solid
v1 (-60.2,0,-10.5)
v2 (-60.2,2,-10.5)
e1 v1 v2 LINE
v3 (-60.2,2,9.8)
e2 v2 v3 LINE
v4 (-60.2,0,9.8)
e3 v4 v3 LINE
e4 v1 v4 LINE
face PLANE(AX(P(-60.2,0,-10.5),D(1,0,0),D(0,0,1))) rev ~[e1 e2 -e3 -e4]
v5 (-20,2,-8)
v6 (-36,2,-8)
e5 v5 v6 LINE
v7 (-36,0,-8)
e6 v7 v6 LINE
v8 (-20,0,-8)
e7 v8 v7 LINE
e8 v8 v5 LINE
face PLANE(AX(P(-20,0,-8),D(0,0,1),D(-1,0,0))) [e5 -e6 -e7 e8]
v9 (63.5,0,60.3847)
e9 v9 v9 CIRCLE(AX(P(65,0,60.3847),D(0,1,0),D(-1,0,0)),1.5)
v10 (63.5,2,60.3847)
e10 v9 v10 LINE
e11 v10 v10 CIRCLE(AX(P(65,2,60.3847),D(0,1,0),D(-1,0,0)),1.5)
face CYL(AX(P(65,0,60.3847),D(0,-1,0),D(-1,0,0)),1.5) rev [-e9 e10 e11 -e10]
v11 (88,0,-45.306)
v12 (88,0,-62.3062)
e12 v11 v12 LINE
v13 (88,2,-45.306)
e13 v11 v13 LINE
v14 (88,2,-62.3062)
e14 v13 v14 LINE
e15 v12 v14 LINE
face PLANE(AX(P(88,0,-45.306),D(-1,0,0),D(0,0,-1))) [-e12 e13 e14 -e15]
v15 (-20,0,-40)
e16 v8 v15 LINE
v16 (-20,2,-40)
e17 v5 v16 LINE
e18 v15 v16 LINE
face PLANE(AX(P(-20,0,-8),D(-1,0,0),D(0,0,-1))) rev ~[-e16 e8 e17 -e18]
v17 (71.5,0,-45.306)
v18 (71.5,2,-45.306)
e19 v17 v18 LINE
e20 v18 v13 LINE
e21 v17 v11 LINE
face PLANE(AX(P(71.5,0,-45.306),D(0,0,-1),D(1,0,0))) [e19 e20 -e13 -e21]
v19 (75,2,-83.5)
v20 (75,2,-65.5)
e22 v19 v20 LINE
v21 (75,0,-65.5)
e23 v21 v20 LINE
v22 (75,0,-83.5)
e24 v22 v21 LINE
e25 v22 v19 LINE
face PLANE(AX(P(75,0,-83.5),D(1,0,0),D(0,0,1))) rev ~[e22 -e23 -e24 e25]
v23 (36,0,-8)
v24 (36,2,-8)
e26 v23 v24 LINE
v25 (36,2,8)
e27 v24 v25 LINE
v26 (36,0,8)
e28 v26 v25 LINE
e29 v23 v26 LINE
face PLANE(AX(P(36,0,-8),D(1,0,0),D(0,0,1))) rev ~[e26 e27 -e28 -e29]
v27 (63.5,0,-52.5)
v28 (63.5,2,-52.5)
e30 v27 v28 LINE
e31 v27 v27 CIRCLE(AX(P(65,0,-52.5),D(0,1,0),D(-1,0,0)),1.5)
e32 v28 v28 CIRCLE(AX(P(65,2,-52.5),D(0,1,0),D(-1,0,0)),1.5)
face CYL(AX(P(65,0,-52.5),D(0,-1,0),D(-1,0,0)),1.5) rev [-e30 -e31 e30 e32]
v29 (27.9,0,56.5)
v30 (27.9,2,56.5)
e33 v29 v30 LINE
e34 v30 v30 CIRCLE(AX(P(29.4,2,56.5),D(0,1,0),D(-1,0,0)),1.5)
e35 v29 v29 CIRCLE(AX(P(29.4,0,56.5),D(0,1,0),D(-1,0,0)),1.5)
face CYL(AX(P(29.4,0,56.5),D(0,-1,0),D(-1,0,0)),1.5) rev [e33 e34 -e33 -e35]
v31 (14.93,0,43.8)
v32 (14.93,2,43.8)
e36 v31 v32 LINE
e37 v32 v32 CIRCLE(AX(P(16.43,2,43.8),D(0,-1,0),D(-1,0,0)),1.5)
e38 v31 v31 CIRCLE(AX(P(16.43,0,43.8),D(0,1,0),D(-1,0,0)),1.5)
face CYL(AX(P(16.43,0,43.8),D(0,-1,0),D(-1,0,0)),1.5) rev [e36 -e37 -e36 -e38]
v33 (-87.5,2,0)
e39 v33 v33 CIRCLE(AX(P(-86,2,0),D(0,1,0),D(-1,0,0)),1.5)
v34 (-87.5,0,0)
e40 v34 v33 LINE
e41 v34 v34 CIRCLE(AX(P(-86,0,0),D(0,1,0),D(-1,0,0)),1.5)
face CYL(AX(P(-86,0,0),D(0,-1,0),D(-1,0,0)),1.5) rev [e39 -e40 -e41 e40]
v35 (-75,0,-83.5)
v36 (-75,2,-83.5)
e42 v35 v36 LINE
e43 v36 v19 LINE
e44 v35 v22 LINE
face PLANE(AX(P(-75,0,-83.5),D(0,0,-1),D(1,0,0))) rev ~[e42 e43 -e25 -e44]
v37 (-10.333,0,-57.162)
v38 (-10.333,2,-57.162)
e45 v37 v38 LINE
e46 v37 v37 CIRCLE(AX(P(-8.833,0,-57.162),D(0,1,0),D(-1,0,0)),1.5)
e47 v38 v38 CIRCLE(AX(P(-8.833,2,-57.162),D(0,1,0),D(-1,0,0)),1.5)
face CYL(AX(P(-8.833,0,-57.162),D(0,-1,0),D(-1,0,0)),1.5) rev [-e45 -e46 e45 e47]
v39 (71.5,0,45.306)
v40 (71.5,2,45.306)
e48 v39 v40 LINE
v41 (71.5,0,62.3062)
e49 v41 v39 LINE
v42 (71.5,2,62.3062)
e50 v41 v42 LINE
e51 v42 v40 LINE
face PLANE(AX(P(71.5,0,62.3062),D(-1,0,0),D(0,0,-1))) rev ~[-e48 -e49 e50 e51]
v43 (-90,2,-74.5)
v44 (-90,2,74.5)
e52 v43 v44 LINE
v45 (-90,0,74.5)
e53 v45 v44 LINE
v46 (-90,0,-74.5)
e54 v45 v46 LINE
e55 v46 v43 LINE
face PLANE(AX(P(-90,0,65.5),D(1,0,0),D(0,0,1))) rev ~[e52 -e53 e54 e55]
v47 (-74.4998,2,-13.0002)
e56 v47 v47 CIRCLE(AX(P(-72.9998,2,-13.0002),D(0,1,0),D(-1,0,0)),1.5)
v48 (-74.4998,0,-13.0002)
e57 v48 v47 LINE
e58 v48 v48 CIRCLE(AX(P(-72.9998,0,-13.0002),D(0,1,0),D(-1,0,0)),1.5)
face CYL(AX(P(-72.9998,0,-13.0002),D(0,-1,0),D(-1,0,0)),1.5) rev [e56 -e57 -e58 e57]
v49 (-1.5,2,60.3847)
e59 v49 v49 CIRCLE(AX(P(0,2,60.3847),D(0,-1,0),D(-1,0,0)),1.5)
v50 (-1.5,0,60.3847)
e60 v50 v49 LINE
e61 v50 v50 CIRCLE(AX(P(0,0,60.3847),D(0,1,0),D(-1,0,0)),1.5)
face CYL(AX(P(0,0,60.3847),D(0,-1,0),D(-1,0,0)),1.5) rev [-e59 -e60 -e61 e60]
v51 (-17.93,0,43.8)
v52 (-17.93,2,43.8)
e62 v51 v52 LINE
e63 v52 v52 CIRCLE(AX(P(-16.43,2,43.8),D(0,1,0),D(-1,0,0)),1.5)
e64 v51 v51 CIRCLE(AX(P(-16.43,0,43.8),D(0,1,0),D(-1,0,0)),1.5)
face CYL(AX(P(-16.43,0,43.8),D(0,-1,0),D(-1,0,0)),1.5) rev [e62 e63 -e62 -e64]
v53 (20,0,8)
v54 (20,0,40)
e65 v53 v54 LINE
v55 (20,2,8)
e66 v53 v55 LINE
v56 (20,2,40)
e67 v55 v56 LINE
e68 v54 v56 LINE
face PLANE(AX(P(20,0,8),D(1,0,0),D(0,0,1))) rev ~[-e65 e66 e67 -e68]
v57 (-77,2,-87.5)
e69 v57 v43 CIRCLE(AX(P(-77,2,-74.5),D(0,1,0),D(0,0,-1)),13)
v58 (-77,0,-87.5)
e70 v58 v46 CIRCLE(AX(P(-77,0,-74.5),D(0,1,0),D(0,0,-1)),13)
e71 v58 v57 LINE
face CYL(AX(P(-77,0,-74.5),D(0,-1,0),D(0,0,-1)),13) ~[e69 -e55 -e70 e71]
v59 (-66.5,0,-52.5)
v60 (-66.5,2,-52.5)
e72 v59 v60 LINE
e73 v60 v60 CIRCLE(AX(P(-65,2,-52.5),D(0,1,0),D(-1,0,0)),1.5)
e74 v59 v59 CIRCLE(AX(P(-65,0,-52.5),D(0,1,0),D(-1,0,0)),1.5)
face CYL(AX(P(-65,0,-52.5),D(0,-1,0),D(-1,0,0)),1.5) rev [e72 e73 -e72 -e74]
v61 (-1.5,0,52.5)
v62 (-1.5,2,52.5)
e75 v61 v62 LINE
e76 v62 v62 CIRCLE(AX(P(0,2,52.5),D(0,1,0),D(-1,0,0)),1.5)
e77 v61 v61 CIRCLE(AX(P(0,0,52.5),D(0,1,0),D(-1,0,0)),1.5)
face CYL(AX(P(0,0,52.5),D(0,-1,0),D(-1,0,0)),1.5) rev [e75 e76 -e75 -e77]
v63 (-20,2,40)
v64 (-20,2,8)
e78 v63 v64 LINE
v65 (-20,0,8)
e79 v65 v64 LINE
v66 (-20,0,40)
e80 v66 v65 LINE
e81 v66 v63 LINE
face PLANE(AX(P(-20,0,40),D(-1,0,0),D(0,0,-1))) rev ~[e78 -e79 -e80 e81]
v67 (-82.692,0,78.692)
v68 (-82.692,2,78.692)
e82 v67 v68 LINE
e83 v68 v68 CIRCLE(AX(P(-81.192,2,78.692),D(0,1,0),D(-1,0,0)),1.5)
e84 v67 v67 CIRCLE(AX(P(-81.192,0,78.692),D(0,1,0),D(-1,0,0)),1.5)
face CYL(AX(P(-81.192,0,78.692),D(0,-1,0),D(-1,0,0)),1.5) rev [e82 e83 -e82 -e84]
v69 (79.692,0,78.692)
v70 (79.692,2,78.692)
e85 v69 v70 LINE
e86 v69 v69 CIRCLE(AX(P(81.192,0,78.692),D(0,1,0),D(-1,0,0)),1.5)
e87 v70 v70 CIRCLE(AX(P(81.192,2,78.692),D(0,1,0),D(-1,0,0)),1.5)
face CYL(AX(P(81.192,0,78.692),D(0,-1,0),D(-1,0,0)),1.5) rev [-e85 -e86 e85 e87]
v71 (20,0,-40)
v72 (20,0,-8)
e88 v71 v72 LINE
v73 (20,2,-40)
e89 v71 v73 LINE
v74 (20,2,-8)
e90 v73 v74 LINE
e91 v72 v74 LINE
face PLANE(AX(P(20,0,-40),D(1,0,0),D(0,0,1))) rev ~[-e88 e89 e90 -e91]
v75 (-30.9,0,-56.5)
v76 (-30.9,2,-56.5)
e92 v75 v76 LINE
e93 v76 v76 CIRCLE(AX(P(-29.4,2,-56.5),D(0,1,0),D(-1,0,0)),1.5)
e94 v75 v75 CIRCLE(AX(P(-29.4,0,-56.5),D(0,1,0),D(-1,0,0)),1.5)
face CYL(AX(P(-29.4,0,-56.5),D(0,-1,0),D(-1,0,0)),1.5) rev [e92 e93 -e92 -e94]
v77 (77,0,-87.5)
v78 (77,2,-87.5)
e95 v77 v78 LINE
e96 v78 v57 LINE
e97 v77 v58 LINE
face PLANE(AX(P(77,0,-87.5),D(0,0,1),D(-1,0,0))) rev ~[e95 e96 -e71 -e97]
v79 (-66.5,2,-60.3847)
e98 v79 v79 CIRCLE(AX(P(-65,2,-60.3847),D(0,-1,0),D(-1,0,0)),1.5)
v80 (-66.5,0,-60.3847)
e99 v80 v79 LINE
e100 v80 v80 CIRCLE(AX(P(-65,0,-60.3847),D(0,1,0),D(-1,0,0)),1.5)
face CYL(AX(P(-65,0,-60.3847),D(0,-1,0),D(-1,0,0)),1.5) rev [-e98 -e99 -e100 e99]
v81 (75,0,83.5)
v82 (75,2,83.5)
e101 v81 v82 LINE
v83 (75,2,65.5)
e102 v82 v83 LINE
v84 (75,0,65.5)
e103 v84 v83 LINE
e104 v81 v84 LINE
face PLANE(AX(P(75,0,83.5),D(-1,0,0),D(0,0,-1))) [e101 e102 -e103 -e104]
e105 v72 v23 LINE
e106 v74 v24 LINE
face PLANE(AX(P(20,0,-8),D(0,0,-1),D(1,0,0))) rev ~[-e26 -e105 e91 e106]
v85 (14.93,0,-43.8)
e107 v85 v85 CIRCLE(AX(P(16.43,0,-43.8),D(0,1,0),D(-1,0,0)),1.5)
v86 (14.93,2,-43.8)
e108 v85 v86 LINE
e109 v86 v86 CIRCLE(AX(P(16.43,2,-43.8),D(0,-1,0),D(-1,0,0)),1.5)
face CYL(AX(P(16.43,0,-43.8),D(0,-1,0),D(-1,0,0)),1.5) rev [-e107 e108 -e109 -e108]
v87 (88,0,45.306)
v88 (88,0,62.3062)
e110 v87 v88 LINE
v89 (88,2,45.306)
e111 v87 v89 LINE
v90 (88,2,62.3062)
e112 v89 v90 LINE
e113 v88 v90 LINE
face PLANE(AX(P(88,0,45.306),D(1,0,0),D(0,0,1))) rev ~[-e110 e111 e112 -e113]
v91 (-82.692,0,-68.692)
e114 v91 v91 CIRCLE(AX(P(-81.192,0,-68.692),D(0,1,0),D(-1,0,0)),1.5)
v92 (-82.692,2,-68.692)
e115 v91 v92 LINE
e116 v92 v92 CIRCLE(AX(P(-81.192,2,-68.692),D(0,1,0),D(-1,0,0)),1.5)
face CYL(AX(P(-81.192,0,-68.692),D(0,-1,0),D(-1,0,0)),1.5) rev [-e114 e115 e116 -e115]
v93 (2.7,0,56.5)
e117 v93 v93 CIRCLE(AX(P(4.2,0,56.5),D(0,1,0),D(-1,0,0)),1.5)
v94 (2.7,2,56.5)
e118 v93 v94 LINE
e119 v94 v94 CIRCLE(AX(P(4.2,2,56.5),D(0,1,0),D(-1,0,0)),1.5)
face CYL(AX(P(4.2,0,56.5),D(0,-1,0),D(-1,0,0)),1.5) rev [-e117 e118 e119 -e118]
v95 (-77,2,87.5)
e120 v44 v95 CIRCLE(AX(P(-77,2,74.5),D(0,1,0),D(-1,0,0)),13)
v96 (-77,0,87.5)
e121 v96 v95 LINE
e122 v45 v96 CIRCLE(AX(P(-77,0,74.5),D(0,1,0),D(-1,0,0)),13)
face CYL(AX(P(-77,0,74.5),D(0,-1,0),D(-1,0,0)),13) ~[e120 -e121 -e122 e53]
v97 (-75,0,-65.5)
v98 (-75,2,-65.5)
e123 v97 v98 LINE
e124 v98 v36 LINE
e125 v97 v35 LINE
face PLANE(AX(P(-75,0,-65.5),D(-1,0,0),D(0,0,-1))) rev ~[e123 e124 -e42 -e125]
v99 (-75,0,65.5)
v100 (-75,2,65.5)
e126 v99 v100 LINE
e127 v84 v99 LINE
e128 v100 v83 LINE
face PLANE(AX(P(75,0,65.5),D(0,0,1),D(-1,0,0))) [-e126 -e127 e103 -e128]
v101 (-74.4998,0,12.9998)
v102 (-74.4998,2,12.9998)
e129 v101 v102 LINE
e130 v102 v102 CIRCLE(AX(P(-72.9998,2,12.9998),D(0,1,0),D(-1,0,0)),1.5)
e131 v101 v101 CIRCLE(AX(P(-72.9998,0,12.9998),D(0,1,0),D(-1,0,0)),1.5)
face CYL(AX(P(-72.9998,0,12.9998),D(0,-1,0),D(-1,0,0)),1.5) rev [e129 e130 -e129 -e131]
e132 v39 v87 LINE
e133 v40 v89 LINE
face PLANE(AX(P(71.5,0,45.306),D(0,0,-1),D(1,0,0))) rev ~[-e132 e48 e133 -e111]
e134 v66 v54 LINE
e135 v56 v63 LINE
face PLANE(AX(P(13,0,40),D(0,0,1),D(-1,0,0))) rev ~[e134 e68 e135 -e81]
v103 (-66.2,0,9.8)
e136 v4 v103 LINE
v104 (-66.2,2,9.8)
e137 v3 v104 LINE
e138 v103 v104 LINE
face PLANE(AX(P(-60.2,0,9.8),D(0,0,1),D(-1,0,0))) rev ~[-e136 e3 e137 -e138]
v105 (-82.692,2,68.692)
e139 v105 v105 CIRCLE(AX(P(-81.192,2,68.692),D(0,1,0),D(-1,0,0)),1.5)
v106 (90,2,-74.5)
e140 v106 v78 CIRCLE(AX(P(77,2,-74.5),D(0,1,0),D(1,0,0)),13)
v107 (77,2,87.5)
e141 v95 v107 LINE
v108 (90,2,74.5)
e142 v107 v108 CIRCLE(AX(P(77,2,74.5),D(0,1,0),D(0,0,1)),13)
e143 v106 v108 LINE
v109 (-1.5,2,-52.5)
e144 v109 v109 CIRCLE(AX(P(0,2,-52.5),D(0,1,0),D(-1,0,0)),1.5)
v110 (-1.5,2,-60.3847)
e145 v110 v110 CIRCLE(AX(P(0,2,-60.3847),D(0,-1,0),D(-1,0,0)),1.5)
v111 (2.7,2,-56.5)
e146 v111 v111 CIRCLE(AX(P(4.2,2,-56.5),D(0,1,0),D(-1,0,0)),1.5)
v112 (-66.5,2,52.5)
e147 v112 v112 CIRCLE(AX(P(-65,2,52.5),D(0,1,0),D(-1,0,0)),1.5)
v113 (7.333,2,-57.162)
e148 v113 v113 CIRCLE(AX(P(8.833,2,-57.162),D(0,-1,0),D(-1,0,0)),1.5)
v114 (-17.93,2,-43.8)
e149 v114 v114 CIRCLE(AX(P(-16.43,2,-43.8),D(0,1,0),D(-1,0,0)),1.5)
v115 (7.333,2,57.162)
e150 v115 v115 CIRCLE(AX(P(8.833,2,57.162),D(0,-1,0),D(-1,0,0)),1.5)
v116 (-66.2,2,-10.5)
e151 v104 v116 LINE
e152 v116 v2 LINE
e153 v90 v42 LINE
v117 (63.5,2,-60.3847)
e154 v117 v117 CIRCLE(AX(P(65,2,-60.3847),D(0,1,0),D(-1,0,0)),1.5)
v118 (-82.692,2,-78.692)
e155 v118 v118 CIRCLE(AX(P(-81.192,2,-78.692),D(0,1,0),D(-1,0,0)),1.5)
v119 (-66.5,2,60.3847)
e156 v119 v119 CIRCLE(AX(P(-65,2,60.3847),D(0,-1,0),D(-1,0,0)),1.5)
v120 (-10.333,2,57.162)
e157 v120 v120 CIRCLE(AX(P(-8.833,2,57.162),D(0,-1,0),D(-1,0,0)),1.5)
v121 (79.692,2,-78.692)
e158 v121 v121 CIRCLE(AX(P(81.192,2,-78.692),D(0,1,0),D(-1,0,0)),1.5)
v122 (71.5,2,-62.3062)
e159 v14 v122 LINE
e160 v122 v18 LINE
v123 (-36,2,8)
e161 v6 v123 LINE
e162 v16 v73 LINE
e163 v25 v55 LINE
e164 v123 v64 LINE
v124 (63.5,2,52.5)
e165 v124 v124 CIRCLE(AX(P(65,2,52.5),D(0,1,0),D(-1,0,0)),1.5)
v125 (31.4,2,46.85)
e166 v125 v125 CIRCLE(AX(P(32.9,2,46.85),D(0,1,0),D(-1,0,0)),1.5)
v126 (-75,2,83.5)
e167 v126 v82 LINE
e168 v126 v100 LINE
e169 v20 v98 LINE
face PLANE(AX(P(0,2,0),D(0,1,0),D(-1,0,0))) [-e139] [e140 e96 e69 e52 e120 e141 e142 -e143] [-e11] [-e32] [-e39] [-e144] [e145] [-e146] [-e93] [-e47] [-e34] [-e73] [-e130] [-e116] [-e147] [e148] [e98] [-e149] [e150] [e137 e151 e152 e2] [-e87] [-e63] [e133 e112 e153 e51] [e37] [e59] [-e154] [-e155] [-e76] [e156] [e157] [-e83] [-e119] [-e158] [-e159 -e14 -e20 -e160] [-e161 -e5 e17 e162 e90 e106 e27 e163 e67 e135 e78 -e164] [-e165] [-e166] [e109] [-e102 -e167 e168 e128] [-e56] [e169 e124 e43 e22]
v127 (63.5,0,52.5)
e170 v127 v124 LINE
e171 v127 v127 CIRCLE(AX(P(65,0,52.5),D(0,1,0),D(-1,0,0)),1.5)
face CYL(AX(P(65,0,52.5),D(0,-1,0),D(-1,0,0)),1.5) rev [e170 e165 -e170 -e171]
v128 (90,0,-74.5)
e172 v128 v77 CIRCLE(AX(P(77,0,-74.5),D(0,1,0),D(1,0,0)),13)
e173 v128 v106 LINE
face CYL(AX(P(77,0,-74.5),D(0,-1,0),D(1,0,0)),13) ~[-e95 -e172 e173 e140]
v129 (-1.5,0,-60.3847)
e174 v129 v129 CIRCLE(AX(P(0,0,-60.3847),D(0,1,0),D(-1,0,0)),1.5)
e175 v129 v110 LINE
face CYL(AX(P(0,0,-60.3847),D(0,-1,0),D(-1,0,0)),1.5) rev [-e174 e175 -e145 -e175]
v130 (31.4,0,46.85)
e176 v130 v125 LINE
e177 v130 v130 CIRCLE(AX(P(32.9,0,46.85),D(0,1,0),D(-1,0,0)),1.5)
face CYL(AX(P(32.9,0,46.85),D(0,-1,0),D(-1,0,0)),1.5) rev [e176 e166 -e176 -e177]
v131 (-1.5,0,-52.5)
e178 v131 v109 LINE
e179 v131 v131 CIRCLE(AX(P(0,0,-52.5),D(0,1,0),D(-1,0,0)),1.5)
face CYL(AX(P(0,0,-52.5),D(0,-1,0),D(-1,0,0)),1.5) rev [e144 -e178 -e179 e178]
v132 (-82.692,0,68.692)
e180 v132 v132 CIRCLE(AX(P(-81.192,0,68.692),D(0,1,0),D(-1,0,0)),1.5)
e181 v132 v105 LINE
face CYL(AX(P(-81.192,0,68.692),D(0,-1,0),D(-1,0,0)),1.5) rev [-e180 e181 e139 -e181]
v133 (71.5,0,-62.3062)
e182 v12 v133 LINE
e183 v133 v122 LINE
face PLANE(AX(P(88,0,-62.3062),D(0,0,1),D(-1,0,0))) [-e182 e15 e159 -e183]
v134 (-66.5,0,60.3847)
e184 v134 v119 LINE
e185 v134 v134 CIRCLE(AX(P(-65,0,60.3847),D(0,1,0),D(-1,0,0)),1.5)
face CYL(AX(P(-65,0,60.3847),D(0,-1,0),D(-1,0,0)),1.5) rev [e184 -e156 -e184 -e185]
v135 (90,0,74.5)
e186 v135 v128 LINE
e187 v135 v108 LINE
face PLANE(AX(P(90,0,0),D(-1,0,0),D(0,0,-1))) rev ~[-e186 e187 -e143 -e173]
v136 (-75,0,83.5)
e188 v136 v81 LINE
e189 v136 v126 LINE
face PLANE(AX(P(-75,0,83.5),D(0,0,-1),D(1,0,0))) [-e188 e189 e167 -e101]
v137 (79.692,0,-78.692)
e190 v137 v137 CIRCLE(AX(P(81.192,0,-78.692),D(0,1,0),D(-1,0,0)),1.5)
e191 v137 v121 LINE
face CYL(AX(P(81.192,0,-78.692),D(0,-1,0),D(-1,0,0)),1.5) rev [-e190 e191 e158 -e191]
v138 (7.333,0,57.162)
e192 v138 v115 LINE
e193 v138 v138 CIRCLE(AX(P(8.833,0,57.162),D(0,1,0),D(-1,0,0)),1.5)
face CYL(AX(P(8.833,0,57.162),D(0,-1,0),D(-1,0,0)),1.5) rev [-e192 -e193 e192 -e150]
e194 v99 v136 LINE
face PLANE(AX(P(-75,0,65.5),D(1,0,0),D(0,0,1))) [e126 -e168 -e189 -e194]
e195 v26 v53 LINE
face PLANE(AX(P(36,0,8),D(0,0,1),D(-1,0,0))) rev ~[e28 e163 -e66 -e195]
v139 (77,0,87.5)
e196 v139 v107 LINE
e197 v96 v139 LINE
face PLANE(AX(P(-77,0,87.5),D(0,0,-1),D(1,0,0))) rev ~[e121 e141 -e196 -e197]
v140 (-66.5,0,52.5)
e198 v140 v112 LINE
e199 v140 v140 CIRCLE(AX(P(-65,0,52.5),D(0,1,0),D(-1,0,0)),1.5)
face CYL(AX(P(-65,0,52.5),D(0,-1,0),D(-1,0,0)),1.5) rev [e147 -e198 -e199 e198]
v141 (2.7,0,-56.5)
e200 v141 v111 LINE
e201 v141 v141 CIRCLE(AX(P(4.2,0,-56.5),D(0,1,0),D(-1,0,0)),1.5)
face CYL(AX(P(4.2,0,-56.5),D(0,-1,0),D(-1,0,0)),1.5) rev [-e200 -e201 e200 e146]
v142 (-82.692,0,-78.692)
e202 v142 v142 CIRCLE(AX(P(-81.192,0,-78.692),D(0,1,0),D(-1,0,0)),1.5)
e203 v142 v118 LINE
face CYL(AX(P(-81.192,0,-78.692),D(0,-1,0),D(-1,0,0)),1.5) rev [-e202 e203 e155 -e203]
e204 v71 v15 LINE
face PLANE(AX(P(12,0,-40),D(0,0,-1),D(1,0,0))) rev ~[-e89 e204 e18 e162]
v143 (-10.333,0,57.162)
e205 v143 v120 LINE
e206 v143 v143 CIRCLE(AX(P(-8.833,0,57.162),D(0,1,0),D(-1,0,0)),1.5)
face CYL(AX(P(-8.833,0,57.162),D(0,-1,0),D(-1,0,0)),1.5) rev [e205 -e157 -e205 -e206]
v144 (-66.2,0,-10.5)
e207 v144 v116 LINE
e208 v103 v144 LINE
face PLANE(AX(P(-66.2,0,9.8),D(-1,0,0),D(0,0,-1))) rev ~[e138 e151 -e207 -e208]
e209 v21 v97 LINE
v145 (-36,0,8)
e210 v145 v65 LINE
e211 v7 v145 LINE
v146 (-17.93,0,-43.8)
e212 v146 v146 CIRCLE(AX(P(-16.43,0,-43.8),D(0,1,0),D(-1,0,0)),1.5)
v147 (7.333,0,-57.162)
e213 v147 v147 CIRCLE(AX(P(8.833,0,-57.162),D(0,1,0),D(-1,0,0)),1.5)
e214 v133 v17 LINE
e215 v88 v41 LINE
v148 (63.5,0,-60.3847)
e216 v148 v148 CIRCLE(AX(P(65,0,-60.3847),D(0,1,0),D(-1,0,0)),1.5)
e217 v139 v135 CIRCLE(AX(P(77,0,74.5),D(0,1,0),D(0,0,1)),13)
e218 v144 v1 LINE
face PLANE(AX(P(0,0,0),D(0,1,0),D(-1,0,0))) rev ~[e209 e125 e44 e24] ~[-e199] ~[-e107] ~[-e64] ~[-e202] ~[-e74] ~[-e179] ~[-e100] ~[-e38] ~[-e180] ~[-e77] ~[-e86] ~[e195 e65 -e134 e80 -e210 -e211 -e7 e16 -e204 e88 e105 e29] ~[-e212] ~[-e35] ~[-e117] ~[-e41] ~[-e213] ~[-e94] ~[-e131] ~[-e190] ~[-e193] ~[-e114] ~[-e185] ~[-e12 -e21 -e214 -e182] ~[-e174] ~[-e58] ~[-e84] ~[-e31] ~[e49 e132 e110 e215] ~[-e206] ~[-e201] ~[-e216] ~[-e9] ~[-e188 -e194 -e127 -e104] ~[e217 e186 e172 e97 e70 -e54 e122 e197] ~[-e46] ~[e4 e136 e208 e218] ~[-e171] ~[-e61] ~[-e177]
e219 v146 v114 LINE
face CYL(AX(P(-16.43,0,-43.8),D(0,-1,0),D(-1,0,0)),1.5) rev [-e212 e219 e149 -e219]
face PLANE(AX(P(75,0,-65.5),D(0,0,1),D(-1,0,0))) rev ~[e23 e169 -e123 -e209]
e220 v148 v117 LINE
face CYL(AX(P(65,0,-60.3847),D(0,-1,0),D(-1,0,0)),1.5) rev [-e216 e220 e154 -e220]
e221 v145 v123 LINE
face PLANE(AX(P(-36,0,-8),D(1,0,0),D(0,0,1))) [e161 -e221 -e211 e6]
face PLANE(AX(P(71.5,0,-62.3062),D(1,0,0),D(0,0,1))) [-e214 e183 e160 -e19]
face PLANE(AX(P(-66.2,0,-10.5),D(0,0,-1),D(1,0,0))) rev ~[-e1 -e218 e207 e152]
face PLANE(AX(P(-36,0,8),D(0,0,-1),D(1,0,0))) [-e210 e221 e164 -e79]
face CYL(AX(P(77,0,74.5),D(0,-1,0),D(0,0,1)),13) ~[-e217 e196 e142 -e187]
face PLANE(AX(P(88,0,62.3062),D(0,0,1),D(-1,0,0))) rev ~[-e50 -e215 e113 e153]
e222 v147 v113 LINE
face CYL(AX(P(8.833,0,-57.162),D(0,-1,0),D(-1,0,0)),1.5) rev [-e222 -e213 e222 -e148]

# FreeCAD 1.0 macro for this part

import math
import FreeCAD as App
import Part
import Sketcher
from FreeCAD import Vector


def add_polygon(sketch, points):
    """Adds a closed chain of lines whose ends are joined by coincident constraints."""
    first, n = sketch.GeometryCount, len(points)
    for a, b in zip(points, points[1:] + points[:1]):
        sketch.addGeometry(Part.LineSegment(App.Vector(*a, 0), App.Vector(*b, 0)), False)
    for i in range(n):
        sketch.addConstraint(Sketcher.Constraint("Coincident", first + i, 2, first + (i + 1) % n, 1))

doc = App.newDocument("Part")
body = doc.addObject("PartDesign::Body", "Body")

# Sketch on XZ plane
sketch1 = doc.addObject("Sketcher::SketchObject", "Sketch")
body.addObject(sketch1)
sketch1.AttachmentSupport = (doc.XZ_Plane, [""])
sketch1.MapMode = "FlatFace"
sketch1.addGeometry(Part.ArcOfCircle(Part.Circle(Vector(77, -74.5, 0), Vector(0, 0, 1), 13), math.radians(-90), math.radians(0)), False)  # 0
sketch1.addGeometry(Part.LineSegment(Vector(77, -87.5, 0), Vector(-77, -87.5, 0)), False)  # 1
sketch1.addGeometry(Part.ArcOfCircle(Part.Circle(Vector(-77, -74.5, 0), Vector(0, 0, 1), 13), math.radians(180), math.radians(270)), False)  # 2
sketch1.addGeometry(Part.LineSegment(Vector(-90, -74.5, 0), Vector(-90, 74.5, 0)), False)  # 3
sketch1.addGeometry(Part.ArcOfCircle(Part.Circle(Vector(-77, 74.5, 0), Vector(0, 0, 1), 13), math.radians(90), math.radians(180)), False)  # 4
sketch1.addGeometry(Part.LineSegment(Vector(-77, 87.5, 0), Vector(77, 87.5, 0)), False)  # 5
sketch1.addGeometry(Part.ArcOfCircle(Part.Circle(Vector(77, 74.5, 0), Vector(0, 0, 1), 13), math.radians(0), math.radians(90)), False)  # 6
sketch1.addGeometry(Part.LineSegment(Vector(90, 74.5, 0), Vector(90, -74.5, 0)), False)  # 7
sketch1.addGeometry(Part.Circle(Vector(81.2, -78.7, 0), Vector(0, 0, 1), 1.5), False)  # 8
add_polygon(sketch1, [(88, -45.3), (71.5, -45.3), (71.5, -62.3), (88, -62.3)])  # lines 9-12
sketch1.addGeometry(Part.Circle(Vector(65, -60.4, 0), Vector(0, 0, 1), 1.5), False)  # 13
sketch1.addGeometry(Part.Circle(Vector(65, -52.5, 0), Vector(0, 0, 1), 1.5), False)  # 14
add_polygon(sketch1, [(-75, -65.5), (-75, -83.5), (75, -83.5), (75, -65.5)])  # lines 15-18
sketch1.addGeometry(Part.Circle(Vector(-81.2, -78.7, 0), Vector(0, 0, 1), 1.5), False)  # 19
sketch1.addGeometry(Part.Circle(Vector(-81.2, -68.7, 0), Vector(0, 0, 1), 1.5), False)  # 20
sketch1.addGeometry(Part.Circle(Vector(-73, -13, 0), Vector(0, 0, 1), 1.5), False)  # 21
sketch1.addGeometry(Part.Circle(Vector(0, 60.4, 0), Vector(0, 0, 1), 1.5), False)  # 22
add_polygon(sketch1, [(-20, 40), (-20, 8), (-36, 8), (-36, -8), (-20, -8), (-20, -40), (20, -40), (20, -8), (36, -8), (36, 8), (20, 8), (20, 40)])  # lines 23-34
sketch1.addGeometry(Part.Circle(Vector(16.4, 43.8, 0), Vector(0, 0, 1), 1.5), False)  # 35
sketch1.addGeometry(Part.Circle(Vector(16.4, -43.8, 0), Vector(0, 0, 1), 1.5), False)  # 36
sketch1.addGeometry(Part.Circle(Vector(0, -60.4, 0), Vector(0, 0, 1), 1.5), False)  # 37
sketch1.addGeometry(Part.Circle(Vector(-65, -60.4, 0), Vector(0, 0, 1), 1.5), False)  # 38
sketch1.addGeometry(Part.Circle(Vector(-65, 60.4, 0), Vector(0, 0, 1), 1.5), False)  # 39
add_polygon(sketch1, [(71.5, 62.3), (71.5, 45.3), (88, 45.3), (88, 62.3)])  # lines 40-43
sketch1.addGeometry(Part.Circle(Vector(65, 52.5, 0), Vector(0, 0, 1), 1.5), False)  # 44
sketch1.addGeometry(Part.Circle(Vector(65, 60.4, 0), Vector(0, 0, 1), 1.5), False)  # 45
sketch1.addGeometry(Part.Circle(Vector(81.2, 78.7, 0), Vector(0, 0, 1), 1.5), False)  # 46
sketch1.addGeometry(Part.Circle(Vector(32.9, 46.9, 0), Vector(0, 0, 1), 1.5), False)  # 47
sketch1.addGeometry(Part.Circle(Vector(29.4, 56.5, 0), Vector(0, 0, 1), 1.5), False)  # 48
sketch1.addGeometry(Part.Circle(Vector(-73, 13, 0), Vector(0, 0, 1), 1.5), False)  # 49
add_polygon(sketch1, [(75, 83.5), (-75, 83.5), (-75, 65.5), (75, 65.5)])  # lines 50-53
sketch1.addGeometry(Part.Circle(Vector(-81.2, 68.7, 0), Vector(0, 0, 1), 1.5), False)  # 54
sketch1.addGeometry(Part.Circle(Vector(-81.2, 78.7, 0), Vector(0, 0, 1), 1.5), False)  # 55
sketch1.addGeometry(Part.Circle(Vector(-86, 0, 0), Vector(0, 0, 1), 1.5), False)  # 56
add_polygon(sketch1, [(-60.2, -10.5), (-60.2, 9.8), (-66.2, 9.8), (-66.2, -10.5)])  # lines 57-60
sketch1.addGeometry(Part.Circle(Vector(8.8, 57.2, 0), Vector(0, 0, 1), 1.5), False)  # 61
sketch1.addGeometry(Part.Circle(Vector(4.2, 56.5, 0), Vector(0, 0, 1), 1.5), False)  # 62
sketch1.addGeometry(Part.Circle(Vector(0, 52.5, 0), Vector(0, 0, 1), 1.5), False)  # 63
sketch1.addGeometry(Part.Circle(Vector(-16.4, 43.8, 0), Vector(0, 0, 1), 1.5), False)  # 64
sketch1.addGeometry(Part.Circle(Vector(-8.8, 57.2, 0), Vector(0, 0, 1), 1.5), False)  # 65
sketch1.addGeometry(Part.Circle(Vector(-65, 52.5, 0), Vector(0, 0, 1), 1.5), False)  # 66
sketch1.addGeometry(Part.Circle(Vector(8.8, -57.2, 0), Vector(0, 0, 1), 1.5), False)  # 67
sketch1.addGeometry(Part.Circle(Vector(4.2, -56.5, 0), Vector(0, 0, 1), 1.5), False)  # 68
sketch1.addGeometry(Part.Circle(Vector(-8.8, -57.2, 0), Vector(0, 0, 1), 1.5), False)  # 69
sketch1.addGeometry(Part.Circle(Vector(0, -52.5, 0), Vector(0, 0, 1), 1.5), False)  # 70
sketch1.addGeometry(Part.Circle(Vector(-16.4, -43.8, 0), Vector(0, 0, 1), 1.5), False)  # 71
sketch1.addGeometry(Part.Circle(Vector(-29.4, -56.5, 0), Vector(0, 0, 1), 1.5), False)  # 72
sketch1.addGeometry(Part.Circle(Vector(-65, -52.5, 0), Vector(0, 0, 1), 1.5), False)  # 73
sketch1.addConstraint(Sketcher.Constraint("Tangent", 0, 1, 1, 1))
sketch1.addConstraint(Sketcher.Constraint("Tangent", 1, 2, 2, 2))
sketch1.addConstraint(Sketcher.Constraint("Tangent", 2, 1, 3, 1))
sketch1.addConstraint(Sketcher.Constraint("Tangent", 3, 2, 4, 2))
sketch1.addConstraint(Sketcher.Constraint("Tangent", 4, 1, 5, 1))
sketch1.addConstraint(Sketcher.Constraint("Tangent", 5, 2, 6, 2))
sketch1.addConstraint(Sketcher.Constraint("Tangent", 6, 1, 7, 1))
sketch1.addConstraint(Sketcher.Constraint("Tangent", 7, 2, 0, 2))
sketch1.addConstraint(Sketcher.Constraint("Horizontal", 1))
sketch1.addConstraint(Sketcher.Constraint("Vertical", 3))
sketch1.addConstraint(Sketcher.Constraint("Horizontal", 5))
sketch1.addConstraint(Sketcher.Constraint("Vertical", 7))
sketch1.addConstraint(Sketcher.Constraint("Horizontal", 9))
sketch1.addConstraint(Sketcher.Constraint("Vertical", 10))
sketch1.addConstraint(Sketcher.Constraint("Horizontal", 11))
sketch1.addConstraint(Sketcher.Constraint("Vertical", 12))
sketch1.addConstraint(Sketcher.Constraint("Vertical", 15))
sketch1.addConstraint(Sketcher.Constraint("Horizontal", 16))
sketch1.addConstraint(Sketcher.Constraint("Vertical", 17))
sketch1.addConstraint(Sketcher.Constraint("Horizontal", 18))
sketch1.addConstraint(Sketcher.Constraint("Vertical", 23))
sketch1.addConstraint(Sketcher.Constraint("Horizontal", 24))
sketch1.addConstraint(Sketcher.Constraint("Vertical", 25))
sketch1.addConstraint(Sketcher.Constraint("Horizontal", 26))
sketch1.addConstraint(Sketcher.Constraint("Vertical", 27))
sketch1.addConstraint(Sketcher.Constraint("Horizontal", 28))
sketch1.addConstraint(Sketcher.Constraint("Vertical", 29))
sketch1.addConstraint(Sketcher.Constraint("Horizontal", 30))
sketch1.addConstraint(Sketcher.Constraint("Vertical", 31))
sketch1.addConstraint(Sketcher.Constraint("Horizontal", 32))
sketch1.addConstraint(Sketcher.Constraint("Vertical", 33))
sketch1.addConstraint(Sketcher.Constraint("Horizontal", 34))
sketch1.addConstraint(Sketcher.Constraint("Vertical", 40))
sketch1.addConstraint(Sketcher.Constraint("Horizontal", 41))
sketch1.addConstraint(Sketcher.Constraint("Vertical", 42))
sketch1.addConstraint(Sketcher.Constraint("Horizontal", 43))
sketch1.addConstraint(Sketcher.Constraint("Horizontal", 50))
sketch1.addConstraint(Sketcher.Constraint("Vertical", 51))
sketch1.addConstraint(Sketcher.Constraint("Horizontal", 52))
sketch1.addConstraint(Sketcher.Constraint("Vertical", 53))
sketch1.addConstraint(Sketcher.Constraint("Vertical", 57))
sketch1.addConstraint(Sketcher.Constraint("Horizontal", 58))
sketch1.addConstraint(Sketcher.Constraint("Vertical", 59))
sketch1.addConstraint(Sketcher.Constraint("Horizontal", 60))
sketch1.addConstraint(Sketcher.Constraint("Equal", 0, 2))
sketch1.addConstraint(Sketcher.Constraint("Equal", 2, 4))
sketch1.addConstraint(Sketcher.Constraint("Equal", 4, 6))
sketch1.addConstraint(Sketcher.Constraint("Equal", 8, 13))
sketch1.addConstraint(Sketcher.Constraint("Equal", 13, 14))
sketch1.addConstraint(Sketcher.Constraint("Equal", 14, 19))
sketch1.addConstraint(Sketcher.Constraint("Equal", 19, 20))
sketch1.addConstraint(Sketcher.Constraint("Equal", 20, 21))
sketch1.addConstraint(Sketcher.Constraint("Equal", 21, 22))
sketch1.addConstraint(Sketcher.Constraint("Equal", 22, 35))
sketch1.addConstraint(Sketcher.Constraint("Equal", 35, 36))
sketch1.addConstraint(Sketcher.Constraint("Equal", 36, 37))
sketch1.addConstraint(Sketcher.Constraint("Equal", 37, 38))
sketch1.addConstraint(Sketcher.Constraint("Equal", 38, 39))
sketch1.addConstraint(Sketcher.Constraint("Equal", 39, 44))
sketch1.addConstraint(Sketcher.Constraint("Equal", 44, 45))
sketch1.addConstraint(Sketcher.Constraint("Equal", 45, 46))
sketch1.addConstraint(Sketcher.Constraint("Equal", 46, 47))
sketch1.addConstraint(Sketcher.Constraint("Equal", 47, 48))
sketch1.addConstraint(Sketcher.Constraint("Equal", 48, 49))
sketch1.addConstraint(Sketcher.Constraint("Equal", 49, 54))
sketch1.addConstraint(Sketcher.Constraint("Equal", 54, 55))
sketch1.addConstraint(Sketcher.Constraint("Equal", 55, 56))
sketch1.addConstraint(Sketcher.Constraint("Equal", 56, 61))
sketch1.addConstraint(Sketcher.Constraint("Equal", 61, 62))
sketch1.addConstraint(Sketcher.Constraint("Equal", 62, 63))
sketch1.addConstraint(Sketcher.Constraint("Equal", 63, 64))
sketch1.addConstraint(Sketcher.Constraint("Equal", 64, 65))
sketch1.addConstraint(Sketcher.Constraint("Equal", 65, 66))
sketch1.addConstraint(Sketcher.Constraint("Equal", 66, 67))
sketch1.addConstraint(Sketcher.Constraint("Equal", 67, 68))
sketch1.addConstraint(Sketcher.Constraint("Equal", 68, 69))
sketch1.addConstraint(Sketcher.Constraint("Equal", 69, 70))
sketch1.addConstraint(Sketcher.Constraint("Equal", 70, 71))
sketch1.addConstraint(Sketcher.Constraint("Equal", 71, 72))
sketch1.addConstraint(Sketcher.Constraint("Equal", 72, 73))
sketch1.addConstraint(Sketcher.Constraint("Symmetric", 0, 3, 4, 3, -1, 1))
sketch1.addConstraint(Sketcher.Constraint("Symmetric", 22, 3, 37, 3, -1, 1))
sketch1.addConstraint(Sketcher.Constraint("Symmetric", 13, 3, 39, 3, -1, 1))
sketch1.addConstraint(Sketcher.Constraint("Symmetric", 38, 3, 45, 3, -1, 1))
sketch1.addConstraint(Sketcher.Constraint("Symmetric", 19, 3, 46, 3, -1, 1))
sketch1.addConstraint(Sketcher.Constraint("Symmetric", 8, 3, 55, 3, -1, 1))
sketch1.addConstraint(Sketcher.Constraint("Symmetric", 36, 3, 64, 3, -1, 1))
sketch1.addConstraint(Sketcher.Constraint("Symmetric", 14, 3, 66, 3, -1, 1))
sketch1.addConstraint(Sketcher.Constraint("Symmetric", 65, 3, 67, 3, -1, 1))
sketch1.addConstraint(Sketcher.Constraint("Symmetric", 61, 3, 69, 3, -1, 1))
sketch1.addConstraint(Sketcher.Constraint("Symmetric", 63, 3, 70, 3, -1, 1))
sketch1.addConstraint(Sketcher.Constraint("Symmetric", 35, 3, 71, 3, -1, 1))
sketch1.addConstraint(Sketcher.Constraint("Symmetric", 48, 3, 72, 3, -1, 1))
sketch1.addConstraint(Sketcher.Constraint("Symmetric", 44, 3, 73, 3, -1, 1))
sketch1.addConstraint(Sketcher.Constraint("Symmetric", 23, 2, 29, 2, -1, 1))
sketch1.addConstraint(Sketcher.Constraint("Symmetric", 25, 2, 31, 2, -1, 1))
sketch1.addConstraint(Sketcher.Constraint("Symmetric", 27, 2, 33, 2, -1, 1))
sketch1.addConstraint(Sketcher.Constraint("Symmetric", 16, 2, 50, 2, -1, 1))
sketch1.addConstraint(Sketcher.Constraint("Symmetric", 18, 2, 52, 2, -1, 1))
sketch1.addConstraint(Sketcher.Constraint("Symmetric", 8, 3, 19, 3, -2))
sketch1.addConstraint(Sketcher.Constraint("Symmetric", 13, 3, 38, 3, -2))
sketch1.addConstraint(Sketcher.Constraint("Symmetric", 35, 3, 64, 3, -2))
sketch1.addConstraint(Sketcher.Constraint("Symmetric", 61, 3, 65, 3, -2))
sketch1.addConstraint(Sketcher.Constraint("Symmetric", 44, 3, 66, 3, -2))
sketch1.addConstraint(Sketcher.Constraint("Symmetric", 26, 2, 29, 2, -2))
sketch1.addConstraint(Sketcher.Constraint("Symmetric", 21, 3, 49, 3, -1))
sketch1.addConstraint(Sketcher.Constraint("Symmetric", 20, 3, 54, 3, -1))
sketch1.addConstraint(Sketcher.Constraint("Symmetric", 62, 3, 68, 3, -1))
sketch1.addConstraint(Sketcher.Constraint("Symmetric", 9, 2, 40, 2, -1))
sketch1.addConstraint(Sketcher.Constraint("Symmetric", 11, 2, 42, 2, -1))
sketch1.addConstraint(Sketcher.Constraint("PointOnObject", 22, 3, -2))
sketch1.addConstraint(Sketcher.Constraint("PointOnObject", 56, 3, -1))
sketch1.addConstraint(Sketcher.Constraint("PointOnObject", 63, 3, -2))
sketch1.addConstraint(Sketcher.Constraint("Horizontal", 13, 3, 37, 3))
sketch1.addConstraint(Sketcher.Constraint("Horizontal", 48, 3, 62, 3))
sketch1.addConstraint(Sketcher.Constraint("Horizontal", 44, 3, 63, 3))
sketch1.addConstraint(Sketcher.Constraint("Vertical", 13, 3, 14, 3))
sketch1.addConstraint(Sketcher.Constraint("Vertical", 19, 3, 20, 3))
sketch1.addConstraint(Sketcher.Constraint("Vertical", 18, 2, 50, 2))
sketch1.addConstraint(Sketcher.Constraint("Equal", 32, 25))
sketch1.addConstraint(Sketcher.Constraint("Diameter", 8, 3.0))
sketch1.addConstraint(Sketcher.Constraint("Radius", 0, 13.0))
sketch1.addConstraint(Sketcher.Constraint("DistanceX", 16, 1, 16, 2, 150.0))
sketch1.addConstraint(Sketcher.Constraint("DistanceX", 24, 2, 24, 1, 16.0))
sketch1.addConstraint(Sketcher.Constraint("DistanceX", 28, 1, 28, 2, 40.0))
sketch1.addConstraint(Sketcher.Constraint("DistanceX", 58, 2, 58, 1, 6.0))
sketch1.addConstraint(Sketcher.Constraint("DistanceY", 15, 2, 15, 1, 18.0))
sketch1.addConstraint(Sketcher.Constraint("DistanceY", 57, 1, 57, 2, 20.3))
sketch1.addConstraint(Sketcher.Constraint("DistanceY", 27, 2, -1, 1, 40.0))
sketch1.addConstraint(Sketcher.Constraint("DistanceY", -1, 1, 35, 3, 43.8))
sketch1.addConstraint(Sketcher.Constraint("DistanceX", -1, 1, 48, 3, 29.4))
sketch1.addConstraint(Sketcher.Constraint("DistanceX", -1, 1, 62, 3, 4.2))
sketch1.addConstraint(Sketcher.Constraint("DistanceX", -1, 1, 9, 2, 71.5))
sketch1.addConstraint(Sketcher.Constraint("DistanceX", 1, 2, 1, 1, 154.0))
sketch1.addConstraint(Sketcher.Constraint("DistanceY", 3, 1, 3, 2, 149.0))
sketch1.addConstraint(Sketcher.Constraint("DistanceX", -1, 1, 35, 3, 16.43))
sketch1.addConstraint(Sketcher.Constraint("DistanceX", 9, 2, 9, 1, 16.5))
sketch1.addConstraint(Sketcher.Constraint("DistanceX", -1, 1, 13, 3, 65.0))
sketch1.addConstraint(Sketcher.Constraint("DistanceX", 56, 3, -1, 1, 86.0))
sketch1.addConstraint(Sketcher.Constraint("DistanceY", 9, 2, -1, 1, 45.306))
sketch1.addConstraint(Sketcher.Constraint("DistanceY", 14, 3, -1, 1, 52.5))
sketch1.addConstraint(Sketcher.Constraint("DistanceY", 21, 3, -1, 1, 13.0002))
sketch1.addConstraint(Sketcher.Constraint("DistanceX", -1, 1, 47, 3, 32.9))
sketch1.addConstraint(Sketcher.Constraint("DistanceY", -1, 1, 48, 3, 56.5))
sketch1.addConstraint(Sketcher.Constraint("DistanceY", 15, 2, -1, 1, 83.5))
sketch1.addConstraint(Sketcher.Constraint("DistanceX", 57, 2, -1, 1, 60.2))
sketch1.addConstraint(Sketcher.Constraint("DistanceY", -1, 1, 57, 2, 9.8))
sketch1.addConstraint(Sketcher.Constraint("DistanceY", -1, 1, 47, 3, 46.85))
sketch1.addConstraint(Sketcher.Constraint("DistanceY", 10, 2, 10, 1, 17.0002))
sketch1.addConstraint(Sketcher.Constraint("DistanceX", -1, 1, 8, 3, 81.192))
sketch1.addConstraint(Sketcher.Constraint("DistanceY", 8, 3, -1, 1, 78.692))
sketch1.addConstraint(Sketcher.Constraint("DistanceY", 20, 3, -1, 1, 68.692))
sketch1.addConstraint(Sketcher.Constraint("DistanceX", -1, 1, 61, 3, 8.833))
sketch1.addConstraint(Sketcher.Constraint("DistanceY", -1, 1, 61, 3, 57.162))
sketch1.addConstraint(Sketcher.Constraint("DistanceY", 13, 3, -1, 1, 60.3847))
sketch1.addConstraint(Sketcher.Constraint("DistanceX", 21, 3, -1, 1, 72.9998))
pad1 = doc.addObject("PartDesign::Pad", "Pad")
body.addObject(pad1)
pad1.Profile = sketch1
pad1.Length = 2
pad1.Reversed = True

doc.recompute()
